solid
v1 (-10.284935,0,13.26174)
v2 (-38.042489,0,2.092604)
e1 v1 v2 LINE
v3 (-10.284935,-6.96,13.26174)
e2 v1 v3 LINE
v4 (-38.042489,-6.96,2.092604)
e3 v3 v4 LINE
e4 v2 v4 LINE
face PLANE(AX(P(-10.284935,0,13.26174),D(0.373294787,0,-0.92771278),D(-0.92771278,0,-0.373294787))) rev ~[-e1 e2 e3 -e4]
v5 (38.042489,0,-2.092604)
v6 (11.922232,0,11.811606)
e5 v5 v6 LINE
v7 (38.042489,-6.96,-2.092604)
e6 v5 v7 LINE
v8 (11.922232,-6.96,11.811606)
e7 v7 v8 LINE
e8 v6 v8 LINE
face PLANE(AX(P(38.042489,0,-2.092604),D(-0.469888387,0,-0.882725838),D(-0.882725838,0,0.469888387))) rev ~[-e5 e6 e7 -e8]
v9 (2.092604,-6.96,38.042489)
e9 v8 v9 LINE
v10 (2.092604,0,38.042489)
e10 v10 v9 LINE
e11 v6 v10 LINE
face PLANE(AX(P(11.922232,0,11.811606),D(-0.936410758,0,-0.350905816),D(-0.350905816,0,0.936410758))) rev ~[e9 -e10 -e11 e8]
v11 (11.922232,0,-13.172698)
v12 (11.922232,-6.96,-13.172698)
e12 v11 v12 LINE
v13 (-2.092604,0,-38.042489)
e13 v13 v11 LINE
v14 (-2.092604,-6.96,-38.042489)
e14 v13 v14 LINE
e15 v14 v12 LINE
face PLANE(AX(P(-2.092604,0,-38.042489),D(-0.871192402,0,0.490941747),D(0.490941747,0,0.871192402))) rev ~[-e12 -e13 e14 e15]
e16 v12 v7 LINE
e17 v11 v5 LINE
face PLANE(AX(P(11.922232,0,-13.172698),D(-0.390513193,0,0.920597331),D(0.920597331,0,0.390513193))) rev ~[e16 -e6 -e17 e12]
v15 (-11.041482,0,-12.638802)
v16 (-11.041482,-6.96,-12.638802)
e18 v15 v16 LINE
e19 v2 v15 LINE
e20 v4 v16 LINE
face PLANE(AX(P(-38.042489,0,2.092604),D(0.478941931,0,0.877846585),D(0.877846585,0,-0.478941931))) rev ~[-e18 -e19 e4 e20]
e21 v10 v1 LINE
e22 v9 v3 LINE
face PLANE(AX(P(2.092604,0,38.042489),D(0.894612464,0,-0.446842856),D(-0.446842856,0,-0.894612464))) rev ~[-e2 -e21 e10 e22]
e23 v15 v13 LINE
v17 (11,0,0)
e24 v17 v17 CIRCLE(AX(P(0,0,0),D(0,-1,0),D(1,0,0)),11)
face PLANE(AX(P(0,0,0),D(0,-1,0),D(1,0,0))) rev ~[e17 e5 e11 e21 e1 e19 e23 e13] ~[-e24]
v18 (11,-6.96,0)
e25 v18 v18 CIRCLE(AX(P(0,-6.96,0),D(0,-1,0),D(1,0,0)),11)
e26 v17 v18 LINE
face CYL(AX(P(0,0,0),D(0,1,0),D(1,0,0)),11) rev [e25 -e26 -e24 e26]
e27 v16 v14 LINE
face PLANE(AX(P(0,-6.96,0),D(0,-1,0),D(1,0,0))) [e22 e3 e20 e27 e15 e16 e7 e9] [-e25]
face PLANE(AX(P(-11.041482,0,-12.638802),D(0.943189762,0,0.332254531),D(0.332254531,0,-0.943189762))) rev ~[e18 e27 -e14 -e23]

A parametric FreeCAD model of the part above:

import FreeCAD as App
import Part
import Sketcher

V = App.Vector
Q = App.Units.Quantity

doc = App.newDocument("Part")
body = doc.addObject("PartDesign::Body", "Body")

sketch1 = body.newObject("Sketcher::SketchObject", "Sketch")
sketch1.AttachmentSupport = (doc.getObject("XZ_Plane"), [""])
sketch1.MapMode = "FlatFace"
sketch1.addGeometry([
    Part.LineSegment(V(12, 12, 0), V(2, 38, 0)),
    Part.LineSegment(V(2, 38, 0), V(-10, 13, 0)),
    Part.LineSegment(V(-10, 13, 0), V(-38, 2, 0)),
    Part.LineSegment(V(-38, 2, 0), V(-11, -13, 0)),
    Part.LineSegment(V(-11, -13, 0), V(-2, -38, 0)),
    Part.LineSegment(V(-2, -38, 0), V(12, -13, 0)),
    Part.LineSegment(V(12, -13, 0), V(38, -2, 0)),
    Part.LineSegment(V(38, -2, 0), V(12, 12, 0)),
    Part.Circle(V(0, 0, 0), V(0, 0, 1), 11),
], False)
sketch1.addConstraint([
    Sketcher.Constraint("Coincident", 0, 2, 1, 1),
    Sketcher.Constraint("Coincident", 1, 2, 2, 1),
    Sketcher.Constraint("Coincident", 2, 2, 3, 1),
    Sketcher.Constraint("Coincident", 3, 2, 4, 1),
    Sketcher.Constraint("Coincident", 4, 2, 5, 1),
    Sketcher.Constraint("Coincident", 5, 2, 6, 1),
    Sketcher.Constraint("Coincident", 6, 2, 7, 1),
    Sketcher.Constraint("Coincident", 7, 2, 0, 1),
    Sketcher.Constraint("Coincident", 8, 3, -1, 1),
    Sketcher.Constraint("Symmetric", 0, 2, 4, 2, -1, 1),
    Sketcher.Constraint("Symmetric", 2, 2, 6, 2, -1, 1),
    Sketcher.Constraint("Vertical", 5, 2, 7, 2),
    Sketcher.Constraint("Diameter", 8, Q("22 mm")),
    Sketcher.Constraint("Distance", 1, Q("27.699982 mm")),
    Sketcher.Constraint("Distance", 3, Q("30.75823 mm")),
    Sketcher.Constraint("Distance", 5, Q("28.546841 mm")),
    Sketcher.Constraint("Distance", 6, Q("28.373162 mm")),
    Sketcher.Constraint("DistanceY", -1, 1, 0, 2, Q("38.042489 mm")),
    Sketcher.Constraint("DistanceY", -1, 1, 1, 2, Q("13.26174 mm")),
    Sketcher.Constraint("DistanceX", 2, 2, -1, 1, Q("38.042489 mm")),
    Sketcher.Constraint("DistanceX", -1, 1, 5, 2, Q("11.922232 mm")),
    Sketcher.Constraint("DistanceY", 3, 2, 0, 2, Q("50.681291 mm")),
    Sketcher.Constraint("DistanceX", 1, 2, 4, 2, Q("8.192331 mm")),
    Sketcher.Constraint("DistanceY", 6, 2, 7, 2, Q("13.90421 mm")),
])
pad1 = body.newObject("PartDesign::Pad", "Pad")
pad1.Profile = sketch1
pad1.Length = 6.96

sketch2 = body.newObject("Sketcher::SketchObject", "Sketch001")
sketch2.AttachmentSupport = (doc.getObject("XZ_Plane"), [""])
sketch2.MapMode = "FlatFace"
sketch2.addGeometry([
    Part.LineSegment(V(12, 12, 0), V(2, 38, 0)),
    Part.LineSegment(V(2, 38, 0), V(-10, 13, 0)),
    Part.LineSegment(V(-10, 13, 0), V(-38, 2, 0)),
    Part.LineSegment(V(-38, 2, 0), V(-11, -13, 0)),
    Part.LineSegment(V(-11, -13, 0), V(-2, -38, 0)),
    Part.LineSegment(V(-2, -38, 0), V(12, -13, 0)),
    Part.LineSegment(V(12, -13, 0), V(38, -2, 0)),
    Part.LineSegment(V(38, -2, 0), V(12, 12, 0)),
    Part.Circle(V(0, 0, 0), V(0, 0, 1), 11),
], False)
sketch2.addConstraint([
    Sketcher.Constraint("Coincident", 0, 2, 1, 1),
    Sketcher.Constraint("Coincident", 1, 2, 2, 1),
    Sketcher.Constraint("Coincident", 2, 2, 3, 1),
    Sketcher.Constraint("Coincident", 3, 2, 4, 1),
    Sketcher.Constraint("Coincident", 4, 2, 5, 1),
    Sketcher.Constraint("Coincident", 5, 2, 6, 1),
    Sketcher.Constraint("Coincident", 6, 2, 7, 1),
    Sketcher.Constraint("Coincident", 7, 2, 0, 1),
    Sketcher.Constraint("Coincident", 8, 3, -1, 1),
    Sketcher.Constraint("Symmetric", 0, 2, 4, 2, -1, 1),
    Sketcher.Constraint("Symmetric", 2, 2, 6, 2, -1, 1),
    Sketcher.Constraint("Vertical", 5, 2, 7, 2),
    Sketcher.Constraint("Diameter", 8, Q("22 mm")),
    Sketcher.Constraint("Distance", 1, Q("27.699982 mm")),
    Sketcher.Constraint("Distance", 3, Q("30.75823 mm")),
    Sketcher.Constraint("Distance", 5, Q("28.546841 mm")),
    Sketcher.Constraint("Distance", 6, Q("28.373162 mm")),
    Sketcher.Constraint("DistanceY", -1, 1, 0, 2, Q("38.042489 mm")),
    Sketcher.Constraint("DistanceY", -1, 1, 1, 2, Q("13.26174 mm")),
    Sketcher.Constraint("DistanceX", 2, 2, -1, 1, Q("38.042489 mm")),
    Sketcher.Constraint("DistanceX", -1, 1, 5, 2, Q("11.922232 mm")),
    Sketcher.Constraint("DistanceY", 3, 2, 0, 2, Q("50.681291 mm")),
    Sketcher.Constraint("DistanceX", 1, 2, 4, 2, Q("8.192331 mm")),
    Sketcher.Constraint("DistanceY", 6, 2, 7, 2, Q("13.90421 mm")),
])
pad2 = body.newObject("PartDesign::Pad", "Pad001")
pad2.Profile = sketch2
pad2.Length = 6.96

doc.recompute()
